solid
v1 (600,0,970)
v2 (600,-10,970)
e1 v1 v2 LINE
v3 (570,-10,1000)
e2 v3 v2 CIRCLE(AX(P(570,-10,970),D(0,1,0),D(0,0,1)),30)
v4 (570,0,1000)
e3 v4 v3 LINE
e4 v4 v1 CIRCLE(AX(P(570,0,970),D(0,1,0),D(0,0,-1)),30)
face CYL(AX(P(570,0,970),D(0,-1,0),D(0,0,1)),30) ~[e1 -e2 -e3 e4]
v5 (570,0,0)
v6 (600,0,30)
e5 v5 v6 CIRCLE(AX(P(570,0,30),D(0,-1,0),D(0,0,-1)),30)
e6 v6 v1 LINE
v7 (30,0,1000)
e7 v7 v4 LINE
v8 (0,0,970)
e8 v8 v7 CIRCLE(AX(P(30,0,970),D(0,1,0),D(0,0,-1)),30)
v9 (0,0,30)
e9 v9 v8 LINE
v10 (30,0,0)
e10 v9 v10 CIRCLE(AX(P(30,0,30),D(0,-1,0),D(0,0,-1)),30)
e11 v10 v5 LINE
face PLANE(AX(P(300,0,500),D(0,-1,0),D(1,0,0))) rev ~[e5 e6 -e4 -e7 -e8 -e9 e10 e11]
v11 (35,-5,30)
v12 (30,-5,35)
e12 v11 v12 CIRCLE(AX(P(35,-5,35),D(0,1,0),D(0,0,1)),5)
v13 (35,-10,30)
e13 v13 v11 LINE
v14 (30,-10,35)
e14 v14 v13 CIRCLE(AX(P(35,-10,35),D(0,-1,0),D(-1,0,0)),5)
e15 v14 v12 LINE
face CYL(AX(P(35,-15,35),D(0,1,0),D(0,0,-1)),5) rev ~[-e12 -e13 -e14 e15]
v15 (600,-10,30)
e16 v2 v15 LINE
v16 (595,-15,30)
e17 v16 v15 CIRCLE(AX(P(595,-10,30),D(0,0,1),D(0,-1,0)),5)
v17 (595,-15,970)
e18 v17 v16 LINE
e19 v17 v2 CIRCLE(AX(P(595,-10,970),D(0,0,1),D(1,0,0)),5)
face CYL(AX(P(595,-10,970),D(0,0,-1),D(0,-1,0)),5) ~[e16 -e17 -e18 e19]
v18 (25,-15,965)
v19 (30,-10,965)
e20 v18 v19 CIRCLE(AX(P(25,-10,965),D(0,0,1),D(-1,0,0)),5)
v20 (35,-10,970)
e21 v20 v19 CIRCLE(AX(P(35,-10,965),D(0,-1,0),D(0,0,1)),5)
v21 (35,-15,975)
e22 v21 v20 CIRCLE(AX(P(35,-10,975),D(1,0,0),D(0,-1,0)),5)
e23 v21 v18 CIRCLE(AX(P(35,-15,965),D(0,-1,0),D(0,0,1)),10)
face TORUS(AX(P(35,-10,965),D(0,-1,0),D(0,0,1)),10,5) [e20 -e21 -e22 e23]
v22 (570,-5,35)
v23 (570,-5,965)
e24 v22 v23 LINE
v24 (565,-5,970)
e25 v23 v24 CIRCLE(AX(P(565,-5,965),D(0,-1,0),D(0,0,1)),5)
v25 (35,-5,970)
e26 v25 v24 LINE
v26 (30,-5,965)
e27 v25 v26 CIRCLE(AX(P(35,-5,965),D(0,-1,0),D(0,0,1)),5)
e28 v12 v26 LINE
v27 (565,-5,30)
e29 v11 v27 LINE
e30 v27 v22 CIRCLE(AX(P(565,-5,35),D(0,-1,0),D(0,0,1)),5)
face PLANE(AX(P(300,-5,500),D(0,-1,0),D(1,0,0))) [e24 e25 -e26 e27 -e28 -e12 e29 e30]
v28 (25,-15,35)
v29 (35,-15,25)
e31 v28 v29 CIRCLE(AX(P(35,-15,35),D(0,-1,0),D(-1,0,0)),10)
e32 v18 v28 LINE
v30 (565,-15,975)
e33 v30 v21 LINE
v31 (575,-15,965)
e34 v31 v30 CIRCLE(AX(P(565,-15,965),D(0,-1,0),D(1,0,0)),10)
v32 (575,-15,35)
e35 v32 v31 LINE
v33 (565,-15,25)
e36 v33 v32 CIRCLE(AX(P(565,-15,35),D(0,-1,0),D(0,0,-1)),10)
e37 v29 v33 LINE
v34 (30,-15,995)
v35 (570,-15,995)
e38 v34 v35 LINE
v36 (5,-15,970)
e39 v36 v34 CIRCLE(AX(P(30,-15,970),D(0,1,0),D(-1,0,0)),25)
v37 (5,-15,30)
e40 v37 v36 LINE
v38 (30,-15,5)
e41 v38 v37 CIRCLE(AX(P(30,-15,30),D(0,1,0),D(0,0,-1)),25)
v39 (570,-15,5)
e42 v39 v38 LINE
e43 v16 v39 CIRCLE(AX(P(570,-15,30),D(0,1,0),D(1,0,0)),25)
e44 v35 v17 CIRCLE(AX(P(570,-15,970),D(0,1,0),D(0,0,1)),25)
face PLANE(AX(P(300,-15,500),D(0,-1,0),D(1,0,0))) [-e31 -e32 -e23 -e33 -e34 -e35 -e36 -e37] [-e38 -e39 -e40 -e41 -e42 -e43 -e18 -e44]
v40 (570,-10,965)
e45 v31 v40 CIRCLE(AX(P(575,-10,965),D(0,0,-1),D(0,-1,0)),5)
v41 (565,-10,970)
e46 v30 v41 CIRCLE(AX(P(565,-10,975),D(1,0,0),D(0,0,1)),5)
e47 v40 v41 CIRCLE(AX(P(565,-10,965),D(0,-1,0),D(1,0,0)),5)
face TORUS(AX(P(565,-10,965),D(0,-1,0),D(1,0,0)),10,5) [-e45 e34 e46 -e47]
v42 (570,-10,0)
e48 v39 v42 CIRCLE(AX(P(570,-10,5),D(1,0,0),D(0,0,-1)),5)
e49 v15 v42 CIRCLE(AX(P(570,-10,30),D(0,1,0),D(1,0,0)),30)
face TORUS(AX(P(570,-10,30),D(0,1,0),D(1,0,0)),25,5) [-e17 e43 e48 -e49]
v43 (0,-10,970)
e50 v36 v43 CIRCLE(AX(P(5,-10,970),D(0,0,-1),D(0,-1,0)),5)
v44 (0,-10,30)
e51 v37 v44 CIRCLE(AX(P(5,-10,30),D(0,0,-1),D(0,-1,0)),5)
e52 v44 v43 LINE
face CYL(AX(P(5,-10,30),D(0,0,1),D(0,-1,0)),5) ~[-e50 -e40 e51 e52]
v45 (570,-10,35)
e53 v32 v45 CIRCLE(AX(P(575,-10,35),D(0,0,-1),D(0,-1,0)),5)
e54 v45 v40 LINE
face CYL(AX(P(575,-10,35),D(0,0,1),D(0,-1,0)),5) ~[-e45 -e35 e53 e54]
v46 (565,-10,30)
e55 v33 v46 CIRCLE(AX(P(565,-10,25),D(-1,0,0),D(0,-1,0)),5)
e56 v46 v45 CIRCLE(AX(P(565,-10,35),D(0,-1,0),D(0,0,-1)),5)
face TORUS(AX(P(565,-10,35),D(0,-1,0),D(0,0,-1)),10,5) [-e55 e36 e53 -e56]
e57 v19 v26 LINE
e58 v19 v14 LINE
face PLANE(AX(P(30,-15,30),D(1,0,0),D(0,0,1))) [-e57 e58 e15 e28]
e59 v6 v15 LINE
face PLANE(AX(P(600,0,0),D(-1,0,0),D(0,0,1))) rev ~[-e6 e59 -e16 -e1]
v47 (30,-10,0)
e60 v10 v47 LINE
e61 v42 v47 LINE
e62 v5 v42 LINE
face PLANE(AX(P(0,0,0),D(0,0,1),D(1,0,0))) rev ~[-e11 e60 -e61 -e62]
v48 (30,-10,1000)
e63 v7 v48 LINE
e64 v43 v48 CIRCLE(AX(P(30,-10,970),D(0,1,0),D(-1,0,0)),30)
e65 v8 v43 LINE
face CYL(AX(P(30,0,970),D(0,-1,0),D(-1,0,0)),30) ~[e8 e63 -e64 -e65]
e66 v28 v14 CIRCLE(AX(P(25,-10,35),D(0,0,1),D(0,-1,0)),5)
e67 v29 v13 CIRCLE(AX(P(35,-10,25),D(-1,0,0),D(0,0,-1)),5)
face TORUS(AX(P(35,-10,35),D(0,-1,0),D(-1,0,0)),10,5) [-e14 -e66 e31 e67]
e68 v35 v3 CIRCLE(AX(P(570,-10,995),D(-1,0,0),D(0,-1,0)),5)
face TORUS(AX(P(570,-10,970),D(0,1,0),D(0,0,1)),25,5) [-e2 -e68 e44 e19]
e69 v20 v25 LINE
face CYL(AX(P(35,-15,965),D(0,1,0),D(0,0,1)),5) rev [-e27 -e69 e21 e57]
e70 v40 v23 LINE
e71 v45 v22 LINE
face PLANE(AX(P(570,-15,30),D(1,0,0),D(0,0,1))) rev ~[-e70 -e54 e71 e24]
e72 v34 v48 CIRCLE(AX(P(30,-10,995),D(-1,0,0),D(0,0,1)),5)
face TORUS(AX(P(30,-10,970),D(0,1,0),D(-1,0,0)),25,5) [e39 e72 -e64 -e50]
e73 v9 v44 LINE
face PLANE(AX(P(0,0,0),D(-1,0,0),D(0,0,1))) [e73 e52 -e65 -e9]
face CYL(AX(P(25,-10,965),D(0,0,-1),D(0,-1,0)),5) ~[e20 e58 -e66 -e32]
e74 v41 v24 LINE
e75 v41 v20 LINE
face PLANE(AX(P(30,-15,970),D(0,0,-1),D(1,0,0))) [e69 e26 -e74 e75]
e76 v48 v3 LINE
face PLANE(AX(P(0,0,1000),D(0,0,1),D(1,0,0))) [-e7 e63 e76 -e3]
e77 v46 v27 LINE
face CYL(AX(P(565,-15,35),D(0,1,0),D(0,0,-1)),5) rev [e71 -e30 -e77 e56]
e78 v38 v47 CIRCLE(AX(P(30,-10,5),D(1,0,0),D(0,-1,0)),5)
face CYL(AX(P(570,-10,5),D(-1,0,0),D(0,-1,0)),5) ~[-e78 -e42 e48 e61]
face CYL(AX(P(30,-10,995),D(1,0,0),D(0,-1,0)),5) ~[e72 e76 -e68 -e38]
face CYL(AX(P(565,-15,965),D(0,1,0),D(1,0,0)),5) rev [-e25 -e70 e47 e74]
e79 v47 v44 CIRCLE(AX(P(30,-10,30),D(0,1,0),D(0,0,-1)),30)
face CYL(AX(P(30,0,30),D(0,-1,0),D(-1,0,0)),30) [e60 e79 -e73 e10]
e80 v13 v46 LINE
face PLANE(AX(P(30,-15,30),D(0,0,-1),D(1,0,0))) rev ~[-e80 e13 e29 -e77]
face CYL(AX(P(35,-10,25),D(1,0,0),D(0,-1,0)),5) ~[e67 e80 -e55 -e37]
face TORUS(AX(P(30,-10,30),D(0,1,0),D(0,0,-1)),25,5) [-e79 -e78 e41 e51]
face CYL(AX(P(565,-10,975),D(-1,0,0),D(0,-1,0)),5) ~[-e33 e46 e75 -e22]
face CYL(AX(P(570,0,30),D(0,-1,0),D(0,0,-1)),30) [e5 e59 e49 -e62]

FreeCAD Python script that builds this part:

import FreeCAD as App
import Part
import Sketcher
from FreeCAD import Vector


def edges_at(feature, points):
    """Names of the edges that pass closest to the given points."""
    edges = feature.Shape.Edges
    near = lambda p: min(range(len(edges)), key=lambda i: edges[i].distToShape(Part.Vertex(*p))[0])
    return sorted({f"Edge{near(p) + 1}" for p in points})


def add_polygon(sketch, points):
    """Adds a closed chain of lines whose ends are joined by coincident constraints."""
    first, n = sketch.GeometryCount, len(points)
    for a, b in zip(points, points[1:] + points[:1]):
        sketch.addGeometry(Part.LineSegment(App.Vector(*a, 0), App.Vector(*b, 0)), False)
    for i in range(n):
        sketch.addConstraint(Sketcher.Constraint("Coincident", first + i, 2, first + (i + 1) % n, 1))

doc = App.newDocument("Part")
body = doc.addObject("PartDesign::Body", "Body")

# Sketch on XZ plane
sketch1 = body.newObject("Sketcher::SketchObject", "Sketch")
sketch1.AttachmentSupport = (doc.getObject("XZ_Plane"), [""])
sketch1.MapMode = "FlatFace"
add_polygon(sketch1, [(0, 1000), (0, 0), (600, 0), (600, 1000)])  # lines 0-3
sketch1.addConstraint(Sketcher.Constraint("Vertical", 0))
sketch1.addConstraint(Sketcher.Constraint("Horizontal", 1))
sketch1.addConstraint(Sketcher.Constraint("Vertical", 2))
sketch1.addConstraint(Sketcher.Constraint("Horizontal", 3))
sketch1.addConstraint(Sketcher.Constraint("Coincident", 0, 2, -1, 1))
sketch1.addConstraint(Sketcher.Constraint("DistanceX", 1, 1, 1, 2, 600.0))
sketch1.addConstraint(Sketcher.Constraint("DistanceY", 0, 2, 0, 1, 1000.0))
pad1 = body.newObject("PartDesign::Pad", "Pad")
pad1.Profile = sketch1
pad1.Length = 15

# Sketch on XZ plane
sketch2 = body.newObject("Sketcher::SketchObject", "Sketch001")
sketch2.AttachmentSupport = (doc.getObject("XZ_Plane"), [""])
sketch2.MapMode = "FlatFace"
sketch2.AttachmentOffset = App.Placement(Vector(0, 0, 15), App.Rotation())
add_polygon(sketch2, [(30, 970), (30, 30), (570, 30), (570, 970)])  # lines 0-3
sketch2.addConstraint(Sketcher.Constraint("Vertical", 0))
sketch2.addConstraint(Sketcher.Constraint("Horizontal", 1))
sketch2.addConstraint(Sketcher.Constraint("Vertical", 2))
sketch2.addConstraint(Sketcher.Constraint("Horizontal", 3))
sketch2.addConstraint(Sketcher.Constraint("DistanceX", 1, 1, 1, 2, 540.0))
sketch2.addConstraint(Sketcher.Constraint("DistanceY", 0, 2, 0, 1, 940.0))
sketch2.addConstraint(Sketcher.Constraint("DistanceX", -1, 1, 0, 2, 30.0))
sketch2.addConstraint(Sketcher.Constraint("DistanceY", -1, 1, 0, 2, 30.0))
pocket1 = body.newObject("PartDesign::Pocket", "Pocket")
pocket1.Profile = sketch2
pocket1.Length = 10
doc.recompute()

fillet = body.newObject("PartDesign::Fillet", "Fillet")
fillet.Base = (pocket1, edges_at(pocket1, [
    (0, -7.5, 1000),
    (600, -7.5, 1000),
    (600, -7.5, 0),
    (0, -7.5, 0),
]))
fillet.Radius = 30
doc.recompute()

fillet2 = body.newObject("PartDesign::Fillet", "Fillet001")
fillet2.Base = (fillet, edges_at(fillet, [
    (30, -10, 30),
    (570, -10, 30),
    (570, -10, 970),
    (30, -10, 970),
]))
fillet2.Radius = 5
doc.recompute()

fillet3 = body.newObject("PartDesign::Fillet", "Fillet002")
fillet3.Base = (fillet2, edges_at(fillet2, [
    (570, -15, 500),
    (568.536, -15, 31.464),
    (568.536, -15, 968.536),
    (300, -15, 30),
    (300, -15, 970),
    (31.464, -15, 31.464),
    (31.464, -15, 968.536),
    (30, -15, 500),
    (0, -15, 500),
    (8.787, -15, 991.213),
    (8.787, -15, 8.787),
    (300, -15, 1000),
    (300, -15, 0),
    (591.213, -15, 991.213),
    (591.213, -15, 8.787),
    (600, -15, 500),
]))
fillet3.Radius = 5

doc.recompute()
